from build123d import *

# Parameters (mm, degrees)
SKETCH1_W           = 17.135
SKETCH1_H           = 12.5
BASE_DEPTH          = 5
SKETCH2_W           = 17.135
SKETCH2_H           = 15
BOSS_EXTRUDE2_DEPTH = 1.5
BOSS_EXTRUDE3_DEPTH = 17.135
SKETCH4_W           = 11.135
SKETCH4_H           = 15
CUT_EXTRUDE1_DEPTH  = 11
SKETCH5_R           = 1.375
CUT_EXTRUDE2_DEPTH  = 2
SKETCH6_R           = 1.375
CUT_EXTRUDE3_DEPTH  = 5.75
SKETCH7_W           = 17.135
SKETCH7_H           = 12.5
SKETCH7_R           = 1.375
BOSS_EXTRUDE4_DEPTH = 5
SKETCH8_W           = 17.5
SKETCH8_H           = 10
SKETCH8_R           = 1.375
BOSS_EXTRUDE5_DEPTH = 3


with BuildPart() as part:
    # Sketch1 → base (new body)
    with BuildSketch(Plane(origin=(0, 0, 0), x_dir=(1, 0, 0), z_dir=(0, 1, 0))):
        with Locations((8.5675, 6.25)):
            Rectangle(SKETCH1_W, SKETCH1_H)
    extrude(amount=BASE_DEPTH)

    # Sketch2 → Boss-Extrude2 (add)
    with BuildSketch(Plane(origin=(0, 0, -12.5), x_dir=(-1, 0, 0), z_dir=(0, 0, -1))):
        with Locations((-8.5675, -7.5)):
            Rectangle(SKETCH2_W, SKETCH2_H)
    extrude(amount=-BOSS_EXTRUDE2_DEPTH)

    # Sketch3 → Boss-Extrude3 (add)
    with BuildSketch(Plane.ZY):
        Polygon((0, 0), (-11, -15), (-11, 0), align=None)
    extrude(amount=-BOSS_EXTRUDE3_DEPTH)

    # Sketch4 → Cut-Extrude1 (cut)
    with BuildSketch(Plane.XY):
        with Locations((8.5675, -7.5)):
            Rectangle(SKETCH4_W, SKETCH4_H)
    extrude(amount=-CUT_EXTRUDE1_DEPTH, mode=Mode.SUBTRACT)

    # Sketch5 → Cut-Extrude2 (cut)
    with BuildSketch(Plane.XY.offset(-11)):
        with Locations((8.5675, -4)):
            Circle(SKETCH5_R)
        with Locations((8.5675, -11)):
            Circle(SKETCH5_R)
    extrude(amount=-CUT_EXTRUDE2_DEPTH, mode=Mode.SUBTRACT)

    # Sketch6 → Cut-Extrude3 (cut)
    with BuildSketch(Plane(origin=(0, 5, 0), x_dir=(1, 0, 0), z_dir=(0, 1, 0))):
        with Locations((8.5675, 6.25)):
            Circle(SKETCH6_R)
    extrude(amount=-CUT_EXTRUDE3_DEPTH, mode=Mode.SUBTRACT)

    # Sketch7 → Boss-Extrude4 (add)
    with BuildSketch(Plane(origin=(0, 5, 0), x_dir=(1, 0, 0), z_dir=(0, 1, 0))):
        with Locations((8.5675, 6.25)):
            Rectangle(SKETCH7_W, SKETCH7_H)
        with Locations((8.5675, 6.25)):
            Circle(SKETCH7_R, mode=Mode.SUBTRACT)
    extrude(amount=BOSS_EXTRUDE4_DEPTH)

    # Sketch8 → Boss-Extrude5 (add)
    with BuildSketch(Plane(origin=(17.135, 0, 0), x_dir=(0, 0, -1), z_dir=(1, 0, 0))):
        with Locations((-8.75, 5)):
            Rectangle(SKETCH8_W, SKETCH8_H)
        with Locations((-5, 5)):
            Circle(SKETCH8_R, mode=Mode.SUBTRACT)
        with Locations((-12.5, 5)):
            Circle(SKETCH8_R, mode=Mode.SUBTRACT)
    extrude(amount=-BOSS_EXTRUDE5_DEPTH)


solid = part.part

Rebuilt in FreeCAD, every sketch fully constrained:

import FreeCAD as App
import Part
import Sketcher

doc = App.newDocument("Part")
body = doc.addObject("PartDesign::Body", "Body")

# Sketch on XZ plane
sketch1 = body.newObject("Sketcher::SketchObject", "Sketch")
sketch1.AttachmentSupport = (doc.getObject("XZ_Plane"), [""])
sketch1.MapMode = "FlatFace"
sketch1.addGeometry([
    Part.LineSegment(App.Vector(0, -12.5, 0), App.Vector(0, 0, 0)),
    Part.LineSegment(App.Vector(0, 0, 0), App.Vector(17.135, 0, 0)),
    Part.LineSegment(App.Vector(17.135, 0, 0), App.Vector(17.135, -12.5, 0)),
    Part.LineSegment(App.Vector(17.135, -12.5, 0), App.Vector(0, -12.5, 0)),
], False)
sketch1.addConstraint([
    Sketcher.Constraint("Coincident", 0, 2, 1, 1),
    Sketcher.Constraint("Coincident", 1, 2, 2, 1),
    Sketcher.Constraint("Coincident", 2, 2, 3, 1),
    Sketcher.Constraint("Coincident", 3, 2, 0, 1),
    Sketcher.Constraint("Vertical", 0),
    Sketcher.Constraint("Horizontal", 1),
    Sketcher.Constraint("Vertical", 2),
    Sketcher.Constraint("Horizontal", 3),
    Sketcher.Constraint("Coincident", 0, 2, -1, 1),
    Sketcher.Constraint("DistanceY", 0, 1, 0, 2, 12.5),
    Sketcher.Constraint("DistanceX", 1, 1, 1, 2, 17.135),
])
pad1 = body.newObject("PartDesign::Pad", "Pad")
pad1.Profile = sketch1
pad1.Length = 5
pad1.Reversed = True

# Sketch on XY plane
sketch2 = body.newObject("Sketcher::SketchObject", "Sketch001")
sketch2.AttachmentSupport = (doc.getObject("XY_Plane"), [""])
sketch2.MapMode = "FlatFace"
sketch2.AttachmentOffset = App.Placement(App.Vector(0, 0, -12.5), App.Rotation())
sketch2.addGeometry([
    Part.LineSegment(App.Vector(17.135, 0, 0), App.Vector(17.135, -15, 0)),
    Part.LineSegment(App.Vector(17.135, -15, 0), App.Vector(0, -15, 0)),
    Part.LineSegment(App.Vector(0, -15, 0), App.Vector(0, 0, 0)),
    Part.LineSegment(App.Vector(0, 0, 0), App.Vector(17.135, 0, 0)),
], False)
sketch2.addConstraint([
    Sketcher.Constraint("Coincident", 0, 2, 1, 1),
    Sketcher.Constraint("Coincident", 1, 2, 2, 1),
    Sketcher.Constraint("Coincident", 2, 2, 3, 1),
    Sketcher.Constraint("Coincident", 3, 2, 0, 1),
    Sketcher.Constraint("Vertical", 0),
    Sketcher.Constraint("Horizontal", 1),
    Sketcher.Constraint("Vertical", 2),
    Sketcher.Constraint("Horizontal", 3),
    Sketcher.Constraint("Coincident", 2, 2, -1, 1),
    Sketcher.Constraint("DistanceY", 0, 2, 0, 1, 15.0),
    Sketcher.Constraint("DistanceX", 1, 2, 1, 1, 17.135),
])
pad2 = body.newObject("PartDesign::Pad", "Pad001")
pad2.Profile = sketch2
pad2.Length = 1.5

# Sketch on YZ plane
sketch3 = body.newObject("Sketcher::SketchObject", "Sketch002")
sketch3.AttachmentSupport = (doc.getObject("YZ_Plane"), [""])
sketch3.MapMode = "FlatFace"
sketch3.addGeometry([
    Part.LineSegment(App.Vector(-15, -11, 0), App.Vector(0, 0, 0)),
    Part.LineSegment(App.Vector(0, 0, 0), App.Vector(0, -11, 0)),
    Part.LineSegment(App.Vector(0, -11, 0), App.Vector(-15, -11, 0)),
], False)
sketch3.addConstraint([
    Sketcher.Constraint("Coincident", 0, 2, 1, 1),
    Sketcher.Constraint("Coincident", 1, 2, 2, 1),
    Sketcher.Constraint("Coincident", 2, 2, 0, 1),
    Sketcher.Constraint("Vertical", 1),
    Sketcher.Constraint("Horizontal", 2),
    Sketcher.Constraint("Coincident", 0, 2, -1, 1),
    Sketcher.Constraint("DistanceX", 2, 2, 2, 1, 15.0),
    Sketcher.Constraint("DistanceY", 1, 2, 1, 1, 11.0),
])
pad3 = body.newObject("PartDesign::Pad", "Pad002")
pad3.Profile = sketch3
pad3.Length = 17.135

# Sketch on XY plane
sketch4 = body.newObject("Sketcher::SketchObject", "Sketch003")
sketch4.AttachmentSupport = (doc.getObject("XY_Plane"), [""])
sketch4.MapMode = "FlatFace"
sketch4.addGeometry([
    Part.LineSegment(App.Vector(3, 0, 0), App.Vector(3, -15, 0)),
    Part.LineSegment(App.Vector(3, -15, 0), App.Vector(14.135, -15, 0)),
    Part.LineSegment(App.Vector(14.135, -15, 0), App.Vector(14.135, 0, 0)),
    Part.LineSegment(App.Vector(14.135, 0, 0), App.Vector(3, 0, 0)),
], False)
sketch4.addConstraint([
    Sketcher.Constraint("Coincident", 0, 2, 1, 1),
    Sketcher.Constraint("Coincident", 1, 2, 2, 1),
    Sketcher.Constraint("Coincident", 2, 2, 3, 1),
    Sketcher.Constraint("Coincident", 3, 2, 0, 1),
    Sketcher.Constraint("Vertical", 0),
    Sketcher.Constraint("Horizontal", 1),
    Sketcher.Constraint("Vertical", 2),
    Sketcher.Constraint("Horizontal", 3),
    Sketcher.Constraint("PointOnObject", 2, 2, -1),
    Sketcher.Constraint("DistanceY", 0, 2, 0, 1, 15.0),
    Sketcher.Constraint("DistanceX", -1, 1, 0, 2, 3.0),
    Sketcher.Constraint("DistanceX", 1, 1, 1, 2, 11.135),
])
pocket1 = body.newObject("PartDesign::Pocket", "Pocket")
pocket1.Profile = sketch4
pocket1.Length = 11

# Sketch on XY plane
sketch5 = body.newObject("Sketcher::SketchObject", "Sketch004")
sketch5.AttachmentSupport = (doc.getObject("XY_Plane"), [""])
sketch5.MapMode = "FlatFace"
sketch5.AttachmentOffset = App.Placement(App.Vector(0, 0, -11), App.Rotation())
sketch5.addGeometry([
    Part.Circle(App.Vector(8.5675, -4, 0), App.Vector(0, 0, 1), 1.375),
    Part.Circle(App.Vector(8.5675, -11, 0), App.Vector(0, 0, 1), 1.375),
], False)
sketch5.addConstraint([
    Sketcher.Constraint("Equal", 0, 1),
    Sketcher.Constraint("Vertical", 0, 3, 1, 3),
    Sketcher.Constraint("Diameter", 0, 2.75),
    Sketcher.Constraint("DistanceY", 0, 3, -1, 1, 4.0),
    Sketcher.Constraint("DistanceY", 1, 3, -1, 1, 11.0),
    Sketcher.Constraint("DistanceX", -1, 1, 0, 3, 8.5675),
])
pocket2 = body.newObject("PartDesign::Pocket", "Pocket001")
pocket2.Profile = sketch5
pocket2.Length = 2

# Sketch on XZ plane
sketch6 = body.newObject("Sketcher::SketchObject", "Sketch005")
sketch6.AttachmentSupport = (doc.getObject("XZ_Plane"), [""])
sketch6.MapMode = "FlatFace"
sketch6.AttachmentOffset = App.Placement(App.Vector(0, 0, -5), App.Rotation())
sketch6.addGeometry(Part.Circle(App.Vector(8.5675, -6.25, 0), App.Vector(0, 0, 1), 1.375), False)
sketch6.addConstraint([
    Sketcher.Constraint("Diameter", 0, 2.75),
    Sketcher.Constraint("DistanceY", 0, 3, -1, 1, 6.25),
    Sketcher.Constraint("DistanceX", -1, 1, 0, 3, 8.5675),
])
pocket3 = body.newObject("PartDesign::Pocket", "Pocket002")
pocket3.Profile = sketch6
pocket3.Length = 5.75
pocket3.Reversed = True

# Sketch on XZ plane
sketch7 = body.newObject("Sketcher::SketchObject", "Sketch006")
sketch7.AttachmentSupport = (doc.getObject("XZ_Plane"), [""])
sketch7.MapMode = "FlatFace"
sketch7.AttachmentOffset = App.Placement(App.Vector(0, 0, -5), App.Rotation())
sketch7.addGeometry([
    Part.LineSegment(App.Vector(0, -12.5, 0), App.Vector(0, 0, 0)),  # 0
    Part.LineSegment(App.Vector(0, 0, 0), App.Vector(17.135, 0, 0)),  # 1
    Part.LineSegment(App.Vector(17.135, 0, 0), App.Vector(17.135, -12.5, 0)),  # 2
    Part.LineSegment(App.Vector(17.135, -12.5, 0), App.Vector(0, -12.5, 0)),  # 3
    Part.Circle(App.Vector(8.5675, -6.25, 0), App.Vector(0, 0, 1), 1.375),  # 4
], False)
sketch7.addConstraint([
    Sketcher.Constraint("Coincident", 0, 2, 1, 1),
    Sketcher.Constraint("Coincident", 1, 2, 2, 1),
    Sketcher.Constraint("Coincident", 2, 2, 3, 1),
    Sketcher.Constraint("Coincident", 3, 2, 0, 1),
    Sketcher.Constraint("Vertical", 0),
    Sketcher.Constraint("Horizontal", 1),
    Sketcher.Constraint("Vertical", 2),
    Sketcher.Constraint("Horizontal", 3),
    Sketcher.Constraint("Coincident", 0, 2, -1, 1),
    Sketcher.Constraint("Diameter", 4, 2.75),
    Sketcher.Constraint("DistanceY", 0, 1, 0, 2, 12.5),
    Sketcher.Constraint("DistanceX", 1, 1, 1, 2, 17.135),
    Sketcher.Constraint("DistanceY", 4, 3, -1, 1, 6.25),
    Sketcher.Constraint("DistanceX", -1, 1, 4, 3, 8.5675),
])
pad4 = body.newObject("PartDesign::Pad", "Pad003")
pad4.Profile = sketch7
pad4.Length = 5
pad4.Reversed = True

# Sketch on YZ plane
sketch8 = body.newObject("Sketcher::SketchObject", "Sketch007")
sketch8.AttachmentSupport = (doc.getObject("YZ_Plane"), [""])
sketch8.MapMode = "FlatFace"
sketch8.AttachmentOffset = App.Placement(App.Vector(0, 0, 17.135), App.Rotation())
sketch8.addGeometry([
    Part.LineSegment(App.Vector(10, 17.5, 0), App.Vector(0, 17.5, 0)),  # 0
    Part.LineSegment(App.Vector(0, 17.5, 0), App.Vector(0, 0, 0)),  # 1
    Part.LineSegment(App.Vector(0, 0, 0), App.Vector(10, 0, 0)),  # 2
    Part.LineSegment(App.Vector(10, 0, 0), App.Vector(10, 17.5, 0)),  # 3
    Part.Circle(App.Vector(5, 12.5, 0), App.Vector(0, 0, 1), 1.375),  # 4
    Part.Circle(App.Vector(5, 5, 0), App.Vector(0, 0, 1), 1.375),  # 5
], False)
sketch8.addConstraint([
    Sketcher.Constraint("Coincident", 0, 2, 1, 1),
    Sketcher.Constraint("Coincident", 1, 2, 2, 1),
    Sketcher.Constraint("Coincident", 2, 2, 3, 1),
    Sketcher.Constraint("Coincident", 3, 2, 0, 1),
    Sketcher.Constraint("Horizontal", 0),
    Sketcher.Constraint("Vertical", 1),
    Sketcher.Constraint("Horizontal", 2),
    Sketcher.Constraint("Vertical", 3),
    Sketcher.Constraint("Coincident", 1, 2, -1, 1),
    Sketcher.Constraint("Equal", 4, 5),
    Sketcher.Constraint("Vertical", 4, 3, 5, 3),
    Sketcher.Constraint("Diameter", 4, 2.75),
    Sketcher.Constraint("DistanceX", 0, 2, 0, 1, 10.0),
    Sketcher.Constraint("DistanceY", 1, 2, 1, 1, 17.5),
    Sketcher.Constraint("DistanceX", -1, 1, 4, 3, 5.0),
    Sketcher.Constraint("DistanceY", -1, 1, 5, 3, 5.0),
    Sketcher.Constraint("DistanceY", 4, 3, 0, 2, 5.0),
])
pad5 = body.newObject("PartDesign::Pad", "Pad004")
pad5.Profile = sketch8
pad5.Length = 3
pad5.Reversed = True

doc.recompute()
